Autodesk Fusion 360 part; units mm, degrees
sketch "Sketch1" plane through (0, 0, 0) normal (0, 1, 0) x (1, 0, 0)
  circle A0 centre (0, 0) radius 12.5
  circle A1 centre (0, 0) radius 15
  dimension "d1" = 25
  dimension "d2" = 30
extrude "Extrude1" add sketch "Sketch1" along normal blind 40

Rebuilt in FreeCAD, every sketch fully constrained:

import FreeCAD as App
import Part
import Sketcher

V = App.Vector
Q = App.Units.Quantity

doc = App.newDocument("Part")
params = doc.addObject("Spreadsheet::Sheet", "Params")
for row, (alias, value) in enumerate([
    ("sketch1_diameter", "30 mm"),
    ("sketch1_diameter2", "25 mm"),
    ("pad1_length", "40 mm"),
], start=1):
    params.set(f"A{row}", alias)
    params.set(f"B{row}", "=" + value)
    params.setAlias(f"B{row}", alias)

body = doc.addObject("PartDesign::Body", "Body")

sketch1 = body.newObject("Sketcher::SketchObject", "Sketch")
sketch1.AttachmentSupport = (doc.getObject("XZ_Plane"), [""])
sketch1.MapMode = "FlatFace"
sketch1.addGeometry(Part.Circle(V(0, 0, 0), V(0, 0, 1), 15), False)
sketch1.addGeometry(Part.Circle(V(0, 0, 0), V(0, 0, 1), 12.5), False)
sketch1.addConstraint(Sketcher.Constraint("Coincident", 0, 3, -1, 1))
sketch1.addConstraint(Sketcher.Constraint("Coincident", 1, 3, -1, 1))
sketch1.addConstraint(Sketcher.Constraint("Diameter", 0, Q("30 mm")))
sketch1.addConstraint(Sketcher.Constraint("Diameter", 1, Q("25 mm")))
sketch1.setExpression("Constraints[2]", "Params.sketch1_diameter")
sketch1.setExpression("Constraints[3]", "Params.sketch1_diameter2")
pad1 = body.newObject("PartDesign::Pad", "Pad")
pad1.Profile = sketch1
pad1.setExpression("Length", "Params.pad1_length")
pad1.Reversed = True

doc.recompute()
